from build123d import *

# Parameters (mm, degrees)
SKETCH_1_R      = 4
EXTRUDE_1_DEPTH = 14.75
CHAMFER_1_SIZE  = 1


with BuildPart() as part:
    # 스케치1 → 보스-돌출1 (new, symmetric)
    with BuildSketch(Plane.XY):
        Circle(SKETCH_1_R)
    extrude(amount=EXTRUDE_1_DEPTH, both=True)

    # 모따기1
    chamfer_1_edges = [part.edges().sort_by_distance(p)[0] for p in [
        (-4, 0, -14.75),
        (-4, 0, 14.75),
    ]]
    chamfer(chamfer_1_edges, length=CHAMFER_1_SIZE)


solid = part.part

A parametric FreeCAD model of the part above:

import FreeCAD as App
import Part
import Sketcher

V = App.Vector


def edges_at(feature, points):
    """Names of the edges that pass closest to the given points."""
    edges = feature.Shape.Edges
    near = lambda p: min(range(len(edges)), key=lambda i: edges[i].distToShape(Part.Vertex(*p))[0])
    return sorted({f"Edge{near(p) + 1}" for p in points})

doc = App.newDocument("Part")
body = doc.addObject("PartDesign::Body", "Body")

# Sketch on XY plane
sketch1 = doc.addObject("Sketcher::SketchObject", "Sketch")
body.addObject(sketch1)
sketch1.AttachmentSupport = (doc.XY_Plane, [""])
sketch1.MapMode = "FlatFace"
sketch1.addGeometry(Part.Circle(V(0, 0, 0), V(0, 0, 1), 4), False)
sketch1.addConstraint(Sketcher.Constraint("Coincident", 0, 3, -1, 1))
sketch1.addConstraint(Sketcher.Constraint("Diameter", 0, 8.0))
pad1 = doc.addObject("PartDesign::Pad", "Pad")
body.addObject(pad1)
pad1.Profile = sketch1
pad1.Length = 29.5
pad1.Midplane = True
doc.recompute()

chamfer = doc.addObject("PartDesign::Chamfer", "Chamfer")
body.addObject(chamfer)
chamfer.Base = (pad1, edges_at(pad1, [(-4, 0, -14.75), (-4, 0, 14.75)]))
chamfer.Size = 1

doc.recompute()
